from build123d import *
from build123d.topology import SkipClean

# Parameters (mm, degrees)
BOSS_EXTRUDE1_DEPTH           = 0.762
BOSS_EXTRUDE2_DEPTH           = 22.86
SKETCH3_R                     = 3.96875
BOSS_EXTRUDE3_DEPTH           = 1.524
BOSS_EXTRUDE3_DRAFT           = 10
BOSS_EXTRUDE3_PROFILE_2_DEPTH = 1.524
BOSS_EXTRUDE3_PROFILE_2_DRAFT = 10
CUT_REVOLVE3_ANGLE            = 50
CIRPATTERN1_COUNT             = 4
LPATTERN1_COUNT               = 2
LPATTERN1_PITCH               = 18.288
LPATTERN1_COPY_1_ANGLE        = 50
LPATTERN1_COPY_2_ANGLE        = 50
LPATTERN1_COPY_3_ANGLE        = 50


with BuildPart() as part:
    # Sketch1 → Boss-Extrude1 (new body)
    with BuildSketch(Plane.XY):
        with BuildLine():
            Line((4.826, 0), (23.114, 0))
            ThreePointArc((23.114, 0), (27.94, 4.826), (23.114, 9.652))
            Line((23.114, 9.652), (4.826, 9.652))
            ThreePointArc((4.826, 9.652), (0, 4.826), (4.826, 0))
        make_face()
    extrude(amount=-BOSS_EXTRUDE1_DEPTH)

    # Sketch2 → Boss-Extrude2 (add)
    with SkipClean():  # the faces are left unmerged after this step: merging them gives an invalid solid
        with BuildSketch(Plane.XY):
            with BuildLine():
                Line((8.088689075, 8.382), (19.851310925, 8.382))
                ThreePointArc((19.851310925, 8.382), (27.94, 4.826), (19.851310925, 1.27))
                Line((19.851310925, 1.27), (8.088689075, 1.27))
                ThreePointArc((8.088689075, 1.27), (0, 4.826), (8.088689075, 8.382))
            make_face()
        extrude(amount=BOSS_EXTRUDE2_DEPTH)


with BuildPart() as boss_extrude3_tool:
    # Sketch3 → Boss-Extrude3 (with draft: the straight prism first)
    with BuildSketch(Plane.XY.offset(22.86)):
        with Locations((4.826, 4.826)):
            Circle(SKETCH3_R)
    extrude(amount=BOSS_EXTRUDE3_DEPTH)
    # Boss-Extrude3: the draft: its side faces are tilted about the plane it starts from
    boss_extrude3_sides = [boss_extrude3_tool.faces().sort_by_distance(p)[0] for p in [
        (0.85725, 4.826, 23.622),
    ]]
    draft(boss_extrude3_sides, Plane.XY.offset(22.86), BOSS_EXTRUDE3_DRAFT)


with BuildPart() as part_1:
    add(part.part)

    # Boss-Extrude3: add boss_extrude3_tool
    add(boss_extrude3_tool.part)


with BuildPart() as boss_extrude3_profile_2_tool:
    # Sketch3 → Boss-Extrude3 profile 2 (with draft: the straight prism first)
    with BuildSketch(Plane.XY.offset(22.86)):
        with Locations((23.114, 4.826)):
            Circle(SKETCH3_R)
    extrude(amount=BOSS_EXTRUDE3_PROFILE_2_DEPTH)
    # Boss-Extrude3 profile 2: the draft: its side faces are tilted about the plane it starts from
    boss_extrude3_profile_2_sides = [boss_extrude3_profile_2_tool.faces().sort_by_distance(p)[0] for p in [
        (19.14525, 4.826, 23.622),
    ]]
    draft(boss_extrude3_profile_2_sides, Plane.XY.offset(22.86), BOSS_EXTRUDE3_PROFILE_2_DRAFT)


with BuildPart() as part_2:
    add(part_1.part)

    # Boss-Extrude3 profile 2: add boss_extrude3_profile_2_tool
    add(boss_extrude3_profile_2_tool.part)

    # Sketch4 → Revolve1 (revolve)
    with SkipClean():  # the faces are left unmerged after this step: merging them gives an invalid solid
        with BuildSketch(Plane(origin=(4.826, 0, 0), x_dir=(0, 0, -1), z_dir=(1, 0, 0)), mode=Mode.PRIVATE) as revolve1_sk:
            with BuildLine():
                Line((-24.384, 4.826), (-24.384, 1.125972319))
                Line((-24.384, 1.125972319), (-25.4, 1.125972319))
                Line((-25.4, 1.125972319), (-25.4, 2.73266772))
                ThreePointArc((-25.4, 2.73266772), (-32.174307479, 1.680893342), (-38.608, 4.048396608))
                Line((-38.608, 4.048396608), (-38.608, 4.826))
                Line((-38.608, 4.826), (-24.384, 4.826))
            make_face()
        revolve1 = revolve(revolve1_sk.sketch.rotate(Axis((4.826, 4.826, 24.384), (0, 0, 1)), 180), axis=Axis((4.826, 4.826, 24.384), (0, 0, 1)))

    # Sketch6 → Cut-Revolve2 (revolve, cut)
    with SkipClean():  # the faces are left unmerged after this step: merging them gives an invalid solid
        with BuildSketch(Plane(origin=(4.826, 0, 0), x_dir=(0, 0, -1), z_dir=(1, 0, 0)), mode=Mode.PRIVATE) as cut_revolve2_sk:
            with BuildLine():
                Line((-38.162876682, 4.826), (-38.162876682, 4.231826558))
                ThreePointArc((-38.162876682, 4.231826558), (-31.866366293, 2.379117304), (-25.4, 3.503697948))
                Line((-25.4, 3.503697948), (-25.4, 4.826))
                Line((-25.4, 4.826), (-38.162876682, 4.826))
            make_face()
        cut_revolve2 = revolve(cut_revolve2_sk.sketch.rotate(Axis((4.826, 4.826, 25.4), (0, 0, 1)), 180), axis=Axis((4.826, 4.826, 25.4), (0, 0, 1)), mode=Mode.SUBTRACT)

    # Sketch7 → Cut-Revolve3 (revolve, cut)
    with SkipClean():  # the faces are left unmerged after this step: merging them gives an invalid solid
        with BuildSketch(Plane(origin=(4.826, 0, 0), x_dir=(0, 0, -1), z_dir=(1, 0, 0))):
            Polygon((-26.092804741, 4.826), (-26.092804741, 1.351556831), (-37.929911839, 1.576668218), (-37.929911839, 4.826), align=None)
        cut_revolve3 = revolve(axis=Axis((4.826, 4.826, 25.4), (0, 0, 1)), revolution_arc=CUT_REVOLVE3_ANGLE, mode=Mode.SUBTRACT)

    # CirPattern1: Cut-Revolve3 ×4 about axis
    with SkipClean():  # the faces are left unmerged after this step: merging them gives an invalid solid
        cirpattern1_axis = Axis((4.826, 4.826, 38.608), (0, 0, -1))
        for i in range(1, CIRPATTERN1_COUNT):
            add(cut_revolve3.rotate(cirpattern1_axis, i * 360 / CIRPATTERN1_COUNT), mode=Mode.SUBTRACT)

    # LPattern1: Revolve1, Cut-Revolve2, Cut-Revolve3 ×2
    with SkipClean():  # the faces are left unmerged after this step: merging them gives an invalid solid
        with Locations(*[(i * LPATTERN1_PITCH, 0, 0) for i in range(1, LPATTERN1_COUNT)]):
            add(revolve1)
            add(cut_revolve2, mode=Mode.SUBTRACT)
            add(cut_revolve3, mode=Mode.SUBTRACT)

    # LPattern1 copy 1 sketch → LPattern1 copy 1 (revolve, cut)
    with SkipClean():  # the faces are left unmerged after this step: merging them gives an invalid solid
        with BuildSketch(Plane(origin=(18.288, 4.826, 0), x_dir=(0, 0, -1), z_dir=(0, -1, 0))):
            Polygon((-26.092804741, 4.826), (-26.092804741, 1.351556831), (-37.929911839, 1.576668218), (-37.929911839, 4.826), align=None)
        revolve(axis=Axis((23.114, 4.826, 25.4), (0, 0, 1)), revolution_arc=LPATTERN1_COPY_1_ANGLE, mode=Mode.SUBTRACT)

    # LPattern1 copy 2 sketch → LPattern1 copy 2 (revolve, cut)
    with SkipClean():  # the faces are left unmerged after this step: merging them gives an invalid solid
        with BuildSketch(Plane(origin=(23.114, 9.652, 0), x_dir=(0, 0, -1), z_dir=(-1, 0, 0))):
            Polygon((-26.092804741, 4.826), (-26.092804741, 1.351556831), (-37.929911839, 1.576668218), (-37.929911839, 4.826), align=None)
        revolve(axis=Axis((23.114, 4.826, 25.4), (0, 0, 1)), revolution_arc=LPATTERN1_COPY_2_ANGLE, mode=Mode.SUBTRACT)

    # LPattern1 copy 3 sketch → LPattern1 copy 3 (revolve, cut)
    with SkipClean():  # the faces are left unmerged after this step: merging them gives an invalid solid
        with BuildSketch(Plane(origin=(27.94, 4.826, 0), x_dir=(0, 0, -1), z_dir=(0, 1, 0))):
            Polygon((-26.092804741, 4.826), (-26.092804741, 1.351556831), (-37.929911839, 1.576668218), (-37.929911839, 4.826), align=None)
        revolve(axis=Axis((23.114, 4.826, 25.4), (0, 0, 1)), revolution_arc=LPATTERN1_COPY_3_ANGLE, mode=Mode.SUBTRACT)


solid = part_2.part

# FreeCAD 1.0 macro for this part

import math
import FreeCAD as App
import Part
import Sketcher
from FreeCAD import Vector
Q = App.Units.Quantity


def faces_at(feature, points):
    """Names of the faces that lie closest to the given points."""
    faces = feature.Shape.Faces
    near = lambda p: min(range(len(faces)), key=lambda i: faces[i].distToShape(Part.Vertex(*p))[0])
    return sorted({f"Face{near(p) + 1}" for p in points})

doc = App.newDocument("Part")
params = doc.addObject("Spreadsheet::Sheet", "Params")
for row, (alias, value) in enumerate([
    ("sketch1_radius", "0.19 in"),
    ("sketch1_width", "0.72 in"),
    ("pad1_length", "0.03 in"),
    ("sketch2_radius", "0.19 in"),
    ("pad2_length", "0.9 in"),
    ("sketch3_diameter", "0.3125 in"),
    ("pad3_length", "0.06 in"),
    ("draft_angle", "10 deg"),
    ("sketch4_diameter", "0.3125 in"),
    ("pad4_length", "0.06 in"),
    ("draft2_angle", "10 deg"),
    ("sketch5_height", "0.56 in"),
    ("sketch5_height2", "0.04 in"),
    ("revolution_angle", "360 deg"),
    ("groove_angle", "360 deg"),
    ("groove2_angle", "50 deg"),
    ("linearpattern_pitch", "0.72 in"),
    ("groove3_angle", "50 deg"),
    ("groove4_angle", "50 deg"),
    ("groove5_angle", "50 deg"),
], start=1):
    params.set(f"A{row}", alias)
    params.set(f"B{row}", "=" + value)
    params.setAlias(f"B{row}", alias)

body = doc.addObject("PartDesign::Body", "Body")

# Sketch on XY plane
sketch1 = body.newObject("Sketcher::SketchObject", "Sketch")
sketch1.AttachmentSupport = (doc.getObject("XY_Plane"), [""])
sketch1.MapMode = "FlatFace"
sketch1.addGeometry(Part.LineSegment(Vector(4.8, 0, 0), Vector(23.1, 0, 0)), False)
sketch1.addGeometry(Part.ArcOfCircle(Part.Circle(Vector(23.1, 4.8, 0), Vector(0, 0, 1), 4.8), math.radians(-90), math.radians(90)), False)
sketch1.addGeometry(Part.LineSegment(Vector(23.1, 9.7, 0), Vector(4.8, 9.7, 0)), False)
sketch1.addGeometry(Part.ArcOfCircle(Part.Circle(Vector(4.8, 4.8, 0), Vector(0, 0, 1), 4.8), math.radians(90), math.radians(270)), False)
sketch1.addConstraint(Sketcher.Constraint("Tangent", 0, 2, 1, 1))
sketch1.addConstraint(Sketcher.Constraint("Tangent", 1, 2, 2, 1))
sketch1.addConstraint(Sketcher.Constraint("Tangent", 2, 2, 3, 1))
sketch1.addConstraint(Sketcher.Constraint("Tangent", 3, 2, 0, 1))
sketch1.addConstraint(Sketcher.Constraint("Horizontal", 0))
sketch1.addConstraint(Sketcher.Constraint("Horizontal", 2))
sketch1.addConstraint(Sketcher.Constraint("PointOnObject", 0, 2, -1))
sketch1.addConstraint(Sketcher.Constraint("Radius", 1, Q("0.19 in")))
sketch1.addConstraint(Sketcher.Constraint("DistanceX", 0, 1, 0, 2, Q("0.72 in")))
sketch1.addConstraint(Sketcher.Constraint("DistanceX", -1, 1, 1, 3, Q("0.91 in")))
sketch1.setExpression("Constraints[7]", "Params.sketch1_radius")
sketch1.setExpression("Constraints[8]", "Params.sketch1_width")
pad1 = body.newObject("PartDesign::Pad", "Pad")
pad1.Profile = sketch1
pad1.setExpression("Length", "Params.pad1_length")
pad1.Reversed = True

# Sketch on XY plane
sketch2 = body.newObject("Sketcher::SketchObject", "Sketch001")
sketch2.AttachmentSupport = (doc.getObject("XY_Plane"), [""])
sketch2.MapMode = "FlatFace"
sketch2.addGeometry(Part.LineSegment(Vector(19.9, 8.4, 0), Vector(8.1, 8.4, 0)), False)
sketch2.addGeometry(Part.ArcOfCircle(Part.Circle(Vector(4.8, 4.8, 0), Vector(0, 0, 1), 4.8), math.radians(47), math.radians(313)), False)
sketch2.addGeometry(Part.LineSegment(Vector(8.1, 1.3, 0), Vector(19.9, 1.3, 0)), False)
sketch2.addGeometry(Part.ArcOfCircle(Part.Circle(Vector(23.1, 4.8, 0), Vector(0, 0, 1), 4.8), math.radians(-133), math.radians(133)), False)
sketch2.addConstraint(Sketcher.Constraint("Coincident", 0, 2, 1, 1))
sketch2.addConstraint(Sketcher.Constraint("Coincident", 1, 2, 2, 1))
sketch2.addConstraint(Sketcher.Constraint("Coincident", 2, 2, 3, 1))
sketch2.addConstraint(Sketcher.Constraint("Coincident", 3, 2, 0, 1))
sketch2.addConstraint(Sketcher.Constraint("Horizontal", 0))
sketch2.addConstraint(Sketcher.Constraint("Horizontal", 2))
sketch2.addConstraint(Sketcher.Constraint("Equal", 1, 3))
sketch2.addConstraint(Sketcher.Constraint("Horizontal", 1, 3, 3, 3))
sketch2.addConstraint(Sketcher.Constraint("Vertical", 0, 2, 1, 2))
sketch2.addConstraint(Sketcher.Constraint("Radius", 1, Q("0.19 in")))
sketch2.addConstraint(Sketcher.Constraint("DistanceX", -1, 1, 1, 3, Q("0.19 in")))
sketch2.addConstraint(Sketcher.Constraint("DistanceY", -1, 1, 1, 3, Q("0.19 in")))
sketch2.addConstraint(Sketcher.Constraint("DistanceX", -1, 1, 3, 3, Q("0.91 in")))
sketch2.addConstraint(Sketcher.Constraint("DistanceY", -1, 1, 0, 2, Q("0.33 in")))
sketch2.setExpression("Constraints[9]", "Params.sketch2_radius")
pad2 = body.newObject("PartDesign::Pad", "Pad001")
pad2.Profile = sketch2
pad2.setExpression("Length", "Params.pad2_length")
body2 = doc.addObject("PartDesign::Body", "Body001")

# Sketch on XY plane
sketch3 = body2.newObject("Sketcher::SketchObject", "Sketch002")
sketch3.AttachmentSupport = (doc.getObject("XY_Plane001"), [""])
sketch3.MapMode = "FlatFace"
sketch3.AttachmentOffset = App.Placement(Vector(0, 0, 0.9 * 25.4), App.Rotation())
sketch3.addGeometry(Part.Circle(Vector(4.8, 4.8, 0), Vector(0, 0, 1), 4), False)
sketch3.addConstraint(Sketcher.Constraint("Diameter", 0, Q("0.3125 in")))
sketch3.addConstraint(Sketcher.Constraint("DistanceX", -1, 1, 0, 3, Q("0.19 in")))
sketch3.addConstraint(Sketcher.Constraint("DistanceY", -1, 1, 0, 3, Q("0.19 in")))
sketch3.setExpression("Constraints[0]", "Params.sketch3_diameter")
pad3 = body2.newObject("PartDesign::Pad", "Pad002")
pad3.Profile = sketch3
pad3.setExpression("Length", "Params.pad3_length")
doc.recompute()

datumplane = body2.newObject("PartDesign::Plane", "DatumPlane")
datumplane.AttachmentSupport = (doc.getObject("XY_Plane001"), [""])
datumplane.MapMode = "FlatFace"
datumplane.AttachmentOffset = App.Placement(Vector(0, 0, 0.9 * 25.4), App.Rotation())
draft = body2.newObject("PartDesign::Draft", "Draft")
draft.Base = (pad3, faces_at(pad3, [(0.857, 4.826, 23.622)]))
draft.NeutralPlane = (datumplane, [""])
draft.setExpression("Angle", "Params.draft_angle")
draft.Reversed = False
doc.recompute()

boolean = body.newObject("PartDesign::Boolean", "Boolean")
boolean.Type = "Fuse"
boolean.addObjects([body2])
body3 = doc.addObject("PartDesign::Body", "Body002")

# Sketch on XY plane
sketch4 = body3.newObject("Sketcher::SketchObject", "Sketch003")
sketch4.AttachmentSupport = (doc.getObject("XY_Plane002"), [""])
sketch4.MapMode = "FlatFace"
sketch4.AttachmentOffset = App.Placement(Vector(0, 0, 0.9 * 25.4), App.Rotation())
sketch4.addGeometry(Part.Circle(Vector(23.1, 4.8, 0), Vector(0, 0, 1), 4), False)
sketch4.addConstraint(Sketcher.Constraint("Diameter", 0, Q("0.3125 in")))
sketch4.addConstraint(Sketcher.Constraint("DistanceX", -1, 1, 0, 3, Q("0.91 in")))
sketch4.addConstraint(Sketcher.Constraint("DistanceY", -1, 1, 0, 3, Q("0.19 in")))
sketch4.setExpression("Constraints[0]", "Params.sketch4_diameter")
pad4 = body3.newObject("PartDesign::Pad", "Pad003")
pad4.Profile = sketch4
pad4.setExpression("Length", "Params.pad4_length")
doc.recompute()

datumplane2 = body3.newObject("PartDesign::Plane", "DatumPlane001")
datumplane2.AttachmentSupport = (doc.getObject("XY_Plane002"), [""])
datumplane2.MapMode = "FlatFace"
datumplane2.AttachmentOffset = App.Placement(Vector(0, 0, 0.9 * 25.4), App.Rotation())
draft2 = body3.newObject("PartDesign::Draft", "Draft001")
draft2.Base = (pad4, faces_at(pad4, [(19.145, 4.826, 23.622)]))
draft2.NeutralPlane = (datumplane2, [""])
draft2.setExpression("Angle", "Params.draft2_angle")
draft2.Reversed = False
doc.recompute()

boolean2 = body.newObject("PartDesign::Boolean", "Boolean001")
boolean2.Type = "Fuse"
boolean2.addObjects([body3])

# Sketch on YZ plane
sketch5 = body.newObject("Sketcher::SketchObject", "Sketch004")
sketch5.AttachmentSupport = (doc.getObject("YZ_Plane"), [""])
sketch5.MapMode = "FlatFace"
sketch5.AttachmentOffset = App.Placement(Vector(0, 0, 0.19 * 25.4), App.Rotation())
sketch5.addGeometry(Part.LineSegment(Vector(1.1, 24.4, 0), Vector(4.8, 24.4, 0)), False)
sketch5.addGeometry(Part.LineSegment(Vector(4.8, 24.4, 0), Vector(4.8, 38.6, 0)), False)
sketch5.addGeometry(Part.LineSegment(Vector(4.8, 38.6, 0), Vector(4, 38.6, 0)), False)
sketch5.addGeometry(Part.ArcOfCircle(Part.Circle(Vector(15.3, 30.8, 0), Vector(0, 0, 1), 13.7), math.radians(145), math.radians(203)), False)
sketch5.addGeometry(Part.LineSegment(Vector(2.7, 25.4, 0), Vector(1.1, 25.4, 0)), False)
sketch5.addGeometry(Part.LineSegment(Vector(1.1, 25.4, 0), Vector(1.1, 24.4, 0)), False)
sketch5.addGeometry(Part.LineSegment(Vector(4.8, 24.4, 0), Vector(4.8, 38.6, 0)), True)  # axis
sketch5.addConstraint(Sketcher.Constraint("Coincident", 0, 2, 1, 1))
sketch5.addConstraint(Sketcher.Constraint("Coincident", 1, 2, 2, 1))
sketch5.addConstraint(Sketcher.Constraint("Coincident", 2, 2, 3, 1))
sketch5.addConstraint(Sketcher.Constraint("Coincident", 3, 2, 4, 1))
sketch5.addConstraint(Sketcher.Constraint("Coincident", 4, 2, 5, 1))
sketch5.addConstraint(Sketcher.Constraint("Coincident", 5, 2, 0, 1))
sketch5.addConstraint(Sketcher.Constraint("Horizontal", 0))
sketch5.addConstraint(Sketcher.Constraint("Vertical", 1))
sketch5.addConstraint(Sketcher.Constraint("Horizontal", 2))
sketch5.addConstraint(Sketcher.Constraint("Horizontal", 4))
sketch5.addConstraint(Sketcher.Constraint("Vertical", 5))
sketch5.addConstraint(Sketcher.Constraint("Vertical", 6))
sketch5.addConstraint(Sketcher.Constraint("Coincident", 6, 1, 0, 2))
sketch5.addConstraint(Sketcher.Constraint("Horizontal", 2, 2, 6, 2))
sketch5.addConstraint(Sketcher.Constraint("DistanceY", -1, 1, 3, 2, Q("1 in")))
sketch5.addConstraint(Sketcher.Constraint("DistanceY", 1, 1, 1, 2, Q("0.56 in")))
sketch5.addConstraint(Sketcher.Constraint("DistanceY", 5, 2, 5, 1, Q("0.04 in")))
sketch5.addConstraint(Sketcher.Constraint("DistanceX", -1, 1, 0, 2, Q("0.19 in")))
sketch5.addConstraint(Sketcher.Constraint("Radius", 3, 13.67716))
sketch5.addConstraint(Sketcher.Constraint("DistanceX", 0, 1, 0, 2, 3.700028))
sketch5.addConstraint(Sketcher.Constraint("DistanceX", 2, 2, 2, 1, 0.777603))
sketch5.addConstraint(Sketcher.Constraint("DistanceX", 4, 2, 4, 1, 1.606695))
sketch5.setExpression("Constraints[15]", "Params.sketch5_height")
sketch5.setExpression("Constraints[16]", "Params.sketch5_height2")
revolution = body.newObject("PartDesign::Revolution", "Revolution")
revolution.Profile = sketch5
revolution.ReferenceAxis = (sketch5, ["Axis0"])
revolution.setExpression("Angle", "Params.revolution_angle")

# Sketch on YZ plane
sketch6 = body.newObject("Sketcher::SketchObject", "Sketch005")
sketch6.AttachmentSupport = (doc.getObject("YZ_Plane"), [""])
sketch6.MapMode = "FlatFace"
sketch6.AttachmentOffset = App.Placement(Vector(0, 0, 0.19 * 25.4), App.Rotation())
sketch6.addGeometry(Part.LineSegment(Vector(4.8, 38.2, 0), Vector(4.2, 38.2, 0)), False)
sketch6.addGeometry(Part.ArcOfCircle(Part.Circle(Vector(16.8, 31, 0), Vector(0, 0, 1), 14.4), math.radians(150), math.radians(203)), False)
sketch6.addGeometry(Part.LineSegment(Vector(3.5, 25.4, 0), Vector(4.8, 25.4, 0)), False)
sketch6.addGeometry(Part.LineSegment(Vector(4.8, 25.4, 0), Vector(4.8, 38.2, 0)), False)
sketch6.addGeometry(Part.LineSegment(Vector(4.8, 25.4, 0), Vector(4.8, 38.2, 0)), True)  # axis
sketch6.addConstraint(Sketcher.Constraint("Coincident", 0, 2, 1, 1))
sketch6.addConstraint(Sketcher.Constraint("Coincident", 1, 2, 2, 1))
sketch6.addConstraint(Sketcher.Constraint("Coincident", 2, 2, 3, 1))
sketch6.addConstraint(Sketcher.Constraint("Coincident", 3, 2, 0, 1))
sketch6.addConstraint(Sketcher.Constraint("Horizontal", 0))
sketch6.addConstraint(Sketcher.Constraint("Horizontal", 2))
sketch6.addConstraint(Sketcher.Constraint("Vertical", 3))
sketch6.addConstraint(Sketcher.Constraint("Vertical", 4))
sketch6.addConstraint(Sketcher.Constraint("Coincident", 4, 1, 2, 2))
sketch6.addConstraint(Sketcher.Constraint("Horizontal", 0, 2, 4, 2))
sketch6.addConstraint(Sketcher.Constraint("DistanceY", -1, 1, 1, 2, Q("1 in")))
sketch6.addConstraint(Sketcher.Constraint("DistanceX", -1, 1, 2, 2, Q("0.19 in")))
sketch6.addConstraint(Sketcher.Constraint("Radius", 1, 14.445567))
sketch6.addConstraint(Sketcher.Constraint("DistanceY", 1, 3, 0, 2, 7.119299))
sketch6.addConstraint(Sketcher.Constraint("DistanceX", 0, 2, 0, 1, 0.594173))
sketch6.addConstraint(Sketcher.Constraint("DistanceX", 2, 1, 2, 2, 1.322302))
groove = body.newObject("PartDesign::Groove", "Groove")
groove.Profile = sketch6
groove.ReferenceAxis = (sketch6, ["Axis0"])
groove.setExpression("Angle", "Params.groove_angle")

# Sketch on YZ plane
sketch7 = body.newObject("Sketcher::SketchObject", "Sketch006")
sketch7.AttachmentSupport = (doc.getObject("YZ_Plane"), [""])
sketch7.MapMode = "FlatFace"
sketch7.AttachmentOffset = App.Placement(Vector(0, 0, 0.19 * 25.4), App.Rotation())
sketch7.addGeometry(Part.LineSegment(Vector(1.4, 26.1, 0), Vector(4.8, 26.1, 0)), False)
sketch7.addGeometry(Part.LineSegment(Vector(4.8, 26.1, 0), Vector(4.8, 37.9, 0)), False)
sketch7.addGeometry(Part.LineSegment(Vector(4.8, 37.9, 0), Vector(1.6, 37.9, 0)), False)
sketch7.addGeometry(Part.LineSegment(Vector(1.6, 37.9, 0), Vector(1.4, 26.1, 0)), False)
sketch7.addGeometry(Part.LineSegment(Vector(4.8, 26.1, 0), Vector(4.8, 37.9, 0)), True)  # axis
sketch7.addConstraint(Sketcher.Constraint("Coincident", 0, 2, 1, 1))
sketch7.addConstraint(Sketcher.Constraint("Coincident", 1, 2, 2, 1))
sketch7.addConstraint(Sketcher.Constraint("Coincident", 2, 2, 3, 1))
sketch7.addConstraint(Sketcher.Constraint("Coincident", 3, 2, 0, 1))
sketch7.addConstraint(Sketcher.Constraint("Horizontal", 0))
sketch7.addConstraint(Sketcher.Constraint("Vertical", 1))
sketch7.addConstraint(Sketcher.Constraint("Horizontal", 2))
sketch7.addConstraint(Sketcher.Constraint("Vertical", 4))
sketch7.addConstraint(Sketcher.Constraint("Coincident", 4, 1, 0, 2))
sketch7.addConstraint(Sketcher.Constraint("Horizontal", 2, 2, 4, 2))
sketch7.addConstraint(Sketcher.Constraint("DistanceX", -1, 1, 0, 2, Q("0.19 in")))
sketch7.addConstraint(Sketcher.Constraint("DistanceX", 2, 2, 2, 1, 3.249332))
sketch7.addConstraint(Sketcher.Constraint("DistanceX", 0, 1, 0, 2, 3.474443))
sketch7.addConstraint(Sketcher.Constraint("DistanceY", 1, 1, 1, 2, 11.837107))
sketch7.addConstraint(Sketcher.Constraint("DistanceY", -1, 1, 1, 2, 37.929912))
groove2 = body.newObject("PartDesign::Groove", "Groove001")
groove2.Profile = sketch7
groove2.ReferenceAxis = (sketch7, ["Axis0"])
groove2.setExpression("Angle", "Params.groove2_angle")
doc.recompute()

datumline = body.newObject("PartDesign::Line", "DatumLine")
datumline.Placement = App.Placement(Vector(4.826, 4.826, 0), App.Rotation(Vector(0, 0, 1), Vector(0, 0, -1)))
polarpattern = body.newObject("PartDesign::PolarPattern", "PolarPattern")
polarpattern.Originals = [groove2]
polarpattern.Axis = (datumline, [""])
polarpattern.Angle = 360
polarpattern.Occurrences = 4
body.Tip = polarpattern
doc.recompute()

linearpattern = body.newObject("PartDesign::LinearPattern", "LinearPattern")
linearpattern.Originals = [revolution, groove, groove2]
linearpattern.Direction = (doc.getObject("X_Axis"), [""])
linearpattern.Mode = "offset"
linearpattern.setExpression("Offset", "Params.linearpattern_pitch")
linearpattern.Occurrences = 2
body.Tip = linearpattern

# Sketch on XZ plane
sketch8 = body.newObject("Sketcher::SketchObject", "Sketch007")
sketch8.AttachmentSupport = (doc.getObject("XZ_Plane"), [""])
sketch8.MapMode = "FlatFace"
sketch8.AttachmentOffset = App.Placement(Vector(0, 0, -0.19 * 25.4), App.Rotation())
sketch8.addGeometry(Part.LineSegment(Vector(19.6, 26.1, 0), Vector(23.1, 26.1, 0)), False)
sketch8.addGeometry(Part.LineSegment(Vector(23.1, 26.1, 0), Vector(23.1, 37.9, 0)), False)
sketch8.addGeometry(Part.LineSegment(Vector(23.1, 37.9, 0), Vector(19.9, 37.9, 0)), False)
sketch8.addGeometry(Part.LineSegment(Vector(19.9, 37.9, 0), Vector(19.6, 26.1, 0)), False)
sketch8.addGeometry(Part.LineSegment(Vector(23.1, 26.1, 0), Vector(23.1, 37.9, 0)), True)  # axis
sketch8.addConstraint(Sketcher.Constraint("Coincident", 0, 2, 1, 1))
sketch8.addConstraint(Sketcher.Constraint("Coincident", 1, 2, 2, 1))
sketch8.addConstraint(Sketcher.Constraint("Coincident", 2, 2, 3, 1))
sketch8.addConstraint(Sketcher.Constraint("Coincident", 3, 2, 0, 1))
sketch8.addConstraint(Sketcher.Constraint("Horizontal", 0))
sketch8.addConstraint(Sketcher.Constraint("Vertical", 1))
sketch8.addConstraint(Sketcher.Constraint("Horizontal", 2))
sketch8.addConstraint(Sketcher.Constraint("Vertical", 4))
sketch8.addConstraint(Sketcher.Constraint("Coincident", 4, 1, 0, 2))
sketch8.addConstraint(Sketcher.Constraint("Horizontal", 2, 2, 4, 2))
sketch8.addConstraint(Sketcher.Constraint("DistanceX", -1, 1, 0, 2, Q("0.91 in")))
sketch8.addConstraint(Sketcher.Constraint("DistanceX", 2, 2, 2, 1, 3.249332))
sketch8.addConstraint(Sketcher.Constraint("DistanceX", 0, 1, 0, 2, 3.474443))
sketch8.addConstraint(Sketcher.Constraint("DistanceY", 1, 1, 1, 2, 11.837107))
sketch8.addConstraint(Sketcher.Constraint("DistanceY", -1, 1, 1, 2, 37.929912))
groove3 = body.newObject("PartDesign::Groove", "Groove002")
groove3.Profile = sketch8
groove3.ReferenceAxis = (sketch8, ["Axis0"])
groove3.setExpression("Angle", "Params.groove3_angle")

# Sketch on YZ plane
sketch9 = body.newObject("Sketcher::SketchObject", "Sketch008")
sketch9.AttachmentSupport = (doc.getObject("YZ_Plane"), [""])
sketch9.MapMode = "FlatFace"
sketch9.AttachmentOffset = App.Placement(Vector(0, 0, 0.91 * 25.4), App.Rotation())
sketch9.addGeometry(Part.LineSegment(Vector(8.3, 26.1, 0), Vector(4.8, 26.1, 0)), False)
sketch9.addGeometry(Part.LineSegment(Vector(4.8, 26.1, 0), Vector(4.8, 37.9, 0)), False)
sketch9.addGeometry(Part.LineSegment(Vector(4.8, 37.9, 0), Vector(8.1, 37.9, 0)), False)
sketch9.addGeometry(Part.LineSegment(Vector(8.1, 37.9, 0), Vector(8.3, 26.1, 0)), False)
sketch9.addGeometry(Part.LineSegment(Vector(4.8, 26.1, 0), Vector(4.8, 37.9, 0)), True)  # axis
sketch9.addConstraint(Sketcher.Constraint("Coincident", 0, 2, 1, 1))
sketch9.addConstraint(Sketcher.Constraint("Coincident", 1, 2, 2, 1))
sketch9.addConstraint(Sketcher.Constraint("Coincident", 2, 2, 3, 1))
sketch9.addConstraint(Sketcher.Constraint("Coincident", 3, 2, 0, 1))
sketch9.addConstraint(Sketcher.Constraint("Horizontal", 0))
sketch9.addConstraint(Sketcher.Constraint("Vertical", 1))
sketch9.addConstraint(Sketcher.Constraint("Horizontal", 2))
sketch9.addConstraint(Sketcher.Constraint("Vertical", 4))
sketch9.addConstraint(Sketcher.Constraint("Coincident", 4, 1, 0, 2))
sketch9.addConstraint(Sketcher.Constraint("Horizontal", 2, 2, 4, 2))
sketch9.addConstraint(Sketcher.Constraint("DistanceX", -1, 1, 0, 2, Q("0.19 in")))
sketch9.addConstraint(Sketcher.Constraint("DistanceX", 2, 1, 2, 2, 3.249332))
sketch9.addConstraint(Sketcher.Constraint("DistanceX", 0, 2, 0, 1, 3.474443))
sketch9.addConstraint(Sketcher.Constraint("DistanceY", 1, 1, 1, 2, 11.837107))
sketch9.addConstraint(Sketcher.Constraint("DistanceY", -1, 1, 1, 2, 37.929912))
groove4 = body.newObject("PartDesign::Groove", "Groove003")
groove4.Profile = sketch9
groove4.ReferenceAxis = (sketch9, ["Axis0"])
groove4.setExpression("Angle", "Params.groove4_angle")

# Sketch on XZ plane
sketch10 = body.newObject("Sketcher::SketchObject", "Sketch009")
sketch10.AttachmentSupport = (doc.getObject("XZ_Plane"), [""])
sketch10.MapMode = "FlatFace"
sketch10.AttachmentOffset = App.Placement(Vector(0, 0, -0.19 * 25.4), App.Rotation())
sketch10.addGeometry(Part.LineSegment(Vector(26.6, 26.1, 0), Vector(23.1, 26.1, 0)), False)
sketch10.addGeometry(Part.LineSegment(Vector(23.1, 26.1, 0), Vector(23.1, 37.9, 0)), False)
sketch10.addGeometry(Part.LineSegment(Vector(23.1, 37.9, 0), Vector(26.4, 37.9, 0)), False)
sketch10.addGeometry(Part.LineSegment(Vector(26.4, 37.9, 0), Vector(26.6, 26.1, 0)), False)
sketch10.addGeometry(Part.LineSegment(Vector(23.1, 26.1, 0), Vector(23.1, 37.9, 0)), True)  # axis
sketch10.addConstraint(Sketcher.Constraint("Coincident", 0, 2, 1, 1))
sketch10.addConstraint(Sketcher.Constraint("Coincident", 1, 2, 2, 1))
sketch10.addConstraint(Sketcher.Constraint("Coincident", 2, 2, 3, 1))
sketch10.addConstraint(Sketcher.Constraint("Coincident", 3, 2, 0, 1))
sketch10.addConstraint(Sketcher.Constraint("Horizontal", 0))
sketch10.addConstraint(Sketcher.Constraint("Vertical", 1))
sketch10.addConstraint(Sketcher.Constraint("Horizontal", 2))
sketch10.addConstraint(Sketcher.Constraint("Vertical", 4))
sketch10.addConstraint(Sketcher.Constraint("Coincident", 4, 1, 0, 2))
sketch10.addConstraint(Sketcher.Constraint("Horizontal", 2, 2, 4, 2))
sketch10.addConstraint(Sketcher.Constraint("DistanceX", -1, 1, 0, 2, Q("0.91 in")))
sketch10.addConstraint(Sketcher.Constraint("DistanceX", 2, 1, 2, 2, 3.249332))
sketch10.addConstraint(Sketcher.Constraint("DistanceX", 0, 2, 0, 1, 3.474443))
sketch10.addConstraint(Sketcher.Constraint("DistanceY", 1, 1, 1, 2, 11.837107))
sketch10.addConstraint(Sketcher.Constraint("DistanceY", -1, 1, 1, 2, 37.929912))
groove5 = body.newObject("PartDesign::Groove", "Groove004")
groove5.Profile = sketch10
groove5.ReferenceAxis = (sketch10, ["Axis0"])
groove5.setExpression("Angle", "Params.groove5_angle")

doc.recompute()
